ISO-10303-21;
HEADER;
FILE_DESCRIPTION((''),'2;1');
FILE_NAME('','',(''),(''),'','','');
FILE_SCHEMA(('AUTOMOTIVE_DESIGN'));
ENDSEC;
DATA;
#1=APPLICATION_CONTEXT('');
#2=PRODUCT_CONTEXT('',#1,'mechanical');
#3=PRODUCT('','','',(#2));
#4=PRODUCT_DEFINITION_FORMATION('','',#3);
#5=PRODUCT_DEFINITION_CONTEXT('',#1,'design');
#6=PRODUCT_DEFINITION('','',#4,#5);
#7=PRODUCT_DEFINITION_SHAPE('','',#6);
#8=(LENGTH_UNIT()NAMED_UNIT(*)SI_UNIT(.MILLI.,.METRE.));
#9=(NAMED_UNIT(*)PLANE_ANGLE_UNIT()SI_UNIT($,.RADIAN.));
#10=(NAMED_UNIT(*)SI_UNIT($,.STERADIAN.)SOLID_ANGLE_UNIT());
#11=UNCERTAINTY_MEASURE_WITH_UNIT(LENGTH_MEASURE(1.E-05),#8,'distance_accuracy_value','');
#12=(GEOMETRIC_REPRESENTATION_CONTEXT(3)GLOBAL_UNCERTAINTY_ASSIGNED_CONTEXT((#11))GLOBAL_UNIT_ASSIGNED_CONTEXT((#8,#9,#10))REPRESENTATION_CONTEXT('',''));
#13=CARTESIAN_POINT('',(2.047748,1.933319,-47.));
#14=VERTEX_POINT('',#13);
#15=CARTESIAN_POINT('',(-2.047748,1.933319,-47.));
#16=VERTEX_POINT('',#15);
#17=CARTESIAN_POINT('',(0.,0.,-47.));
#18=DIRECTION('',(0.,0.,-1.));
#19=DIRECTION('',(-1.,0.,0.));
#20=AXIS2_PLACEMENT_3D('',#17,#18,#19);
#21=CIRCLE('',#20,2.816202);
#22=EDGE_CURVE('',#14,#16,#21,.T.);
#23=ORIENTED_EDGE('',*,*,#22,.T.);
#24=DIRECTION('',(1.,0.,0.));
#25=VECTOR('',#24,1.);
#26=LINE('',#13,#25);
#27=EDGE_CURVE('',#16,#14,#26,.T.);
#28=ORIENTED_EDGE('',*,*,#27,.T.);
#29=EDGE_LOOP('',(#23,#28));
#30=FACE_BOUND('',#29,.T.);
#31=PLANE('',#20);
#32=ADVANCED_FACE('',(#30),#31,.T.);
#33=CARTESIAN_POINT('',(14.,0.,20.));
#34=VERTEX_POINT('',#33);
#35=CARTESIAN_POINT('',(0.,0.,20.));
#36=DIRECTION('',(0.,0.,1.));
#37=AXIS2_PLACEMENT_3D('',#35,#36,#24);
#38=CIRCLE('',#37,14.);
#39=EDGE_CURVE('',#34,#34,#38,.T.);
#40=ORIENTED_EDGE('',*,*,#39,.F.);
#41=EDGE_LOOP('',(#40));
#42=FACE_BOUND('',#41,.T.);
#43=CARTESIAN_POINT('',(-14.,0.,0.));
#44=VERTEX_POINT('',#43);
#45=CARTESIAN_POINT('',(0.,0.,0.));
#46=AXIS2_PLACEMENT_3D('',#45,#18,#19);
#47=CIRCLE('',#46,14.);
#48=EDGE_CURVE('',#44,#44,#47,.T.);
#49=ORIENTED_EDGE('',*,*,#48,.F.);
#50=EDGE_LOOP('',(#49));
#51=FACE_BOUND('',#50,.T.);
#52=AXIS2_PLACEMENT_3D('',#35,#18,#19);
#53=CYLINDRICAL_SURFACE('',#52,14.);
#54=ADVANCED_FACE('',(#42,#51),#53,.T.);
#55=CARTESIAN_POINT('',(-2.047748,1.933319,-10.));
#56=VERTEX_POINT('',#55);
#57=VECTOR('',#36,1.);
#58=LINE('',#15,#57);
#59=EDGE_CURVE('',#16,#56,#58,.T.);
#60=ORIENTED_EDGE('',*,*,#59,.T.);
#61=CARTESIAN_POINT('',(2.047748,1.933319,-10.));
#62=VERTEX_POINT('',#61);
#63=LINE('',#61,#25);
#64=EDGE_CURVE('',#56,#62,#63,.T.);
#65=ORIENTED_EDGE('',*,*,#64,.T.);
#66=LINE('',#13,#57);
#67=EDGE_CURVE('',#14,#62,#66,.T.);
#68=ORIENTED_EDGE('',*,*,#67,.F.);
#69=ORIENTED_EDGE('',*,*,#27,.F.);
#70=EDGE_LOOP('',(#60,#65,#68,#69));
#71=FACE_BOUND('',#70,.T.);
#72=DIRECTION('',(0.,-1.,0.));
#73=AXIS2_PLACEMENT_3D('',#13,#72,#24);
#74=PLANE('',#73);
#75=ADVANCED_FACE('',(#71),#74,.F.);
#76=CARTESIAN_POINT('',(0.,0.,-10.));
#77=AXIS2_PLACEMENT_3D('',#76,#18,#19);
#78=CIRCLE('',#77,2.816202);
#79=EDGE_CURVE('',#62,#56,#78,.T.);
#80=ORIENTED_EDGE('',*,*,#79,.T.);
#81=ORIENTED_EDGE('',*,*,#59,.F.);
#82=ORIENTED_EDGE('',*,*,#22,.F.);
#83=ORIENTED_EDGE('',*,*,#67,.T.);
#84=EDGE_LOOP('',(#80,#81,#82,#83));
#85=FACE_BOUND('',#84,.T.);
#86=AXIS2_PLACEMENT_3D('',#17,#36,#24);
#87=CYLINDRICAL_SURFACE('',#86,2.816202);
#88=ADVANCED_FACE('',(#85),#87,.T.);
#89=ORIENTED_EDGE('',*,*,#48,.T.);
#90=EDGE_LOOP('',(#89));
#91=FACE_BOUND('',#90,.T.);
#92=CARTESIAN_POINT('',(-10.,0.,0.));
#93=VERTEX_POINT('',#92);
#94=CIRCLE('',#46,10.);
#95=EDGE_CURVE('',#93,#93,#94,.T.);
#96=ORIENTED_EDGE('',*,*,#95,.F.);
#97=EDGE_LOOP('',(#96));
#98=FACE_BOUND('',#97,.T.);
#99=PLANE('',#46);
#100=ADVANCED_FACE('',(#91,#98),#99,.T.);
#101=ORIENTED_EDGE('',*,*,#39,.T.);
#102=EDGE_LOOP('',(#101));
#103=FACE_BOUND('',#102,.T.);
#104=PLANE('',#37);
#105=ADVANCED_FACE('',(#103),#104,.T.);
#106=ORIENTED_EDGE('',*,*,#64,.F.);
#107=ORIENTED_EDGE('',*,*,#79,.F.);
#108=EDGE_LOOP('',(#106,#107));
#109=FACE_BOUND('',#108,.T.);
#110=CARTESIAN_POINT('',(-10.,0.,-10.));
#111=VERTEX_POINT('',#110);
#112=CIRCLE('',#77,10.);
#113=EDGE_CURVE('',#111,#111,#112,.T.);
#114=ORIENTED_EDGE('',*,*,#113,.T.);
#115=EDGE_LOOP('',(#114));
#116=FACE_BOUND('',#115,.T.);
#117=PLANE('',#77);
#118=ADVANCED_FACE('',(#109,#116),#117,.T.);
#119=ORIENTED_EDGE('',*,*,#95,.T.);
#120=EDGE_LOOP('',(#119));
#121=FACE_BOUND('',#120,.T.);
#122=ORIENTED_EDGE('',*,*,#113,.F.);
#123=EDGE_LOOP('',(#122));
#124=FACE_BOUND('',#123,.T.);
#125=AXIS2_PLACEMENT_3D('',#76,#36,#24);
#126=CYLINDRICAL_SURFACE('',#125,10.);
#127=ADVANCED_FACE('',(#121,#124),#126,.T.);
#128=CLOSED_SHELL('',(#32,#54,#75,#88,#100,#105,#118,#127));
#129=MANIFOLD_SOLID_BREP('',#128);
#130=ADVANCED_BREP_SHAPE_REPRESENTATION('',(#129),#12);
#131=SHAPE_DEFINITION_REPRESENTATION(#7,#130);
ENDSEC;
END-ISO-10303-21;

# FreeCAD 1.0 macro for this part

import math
import FreeCAD as App
import Part
import Sketcher


def add_polygon(sketch, points):
    """Adds a closed chain of lines whose ends are joined by coincident constraints."""
    first, n = sketch.GeometryCount, len(points)
    for a, b in zip(points, points[1:] + points[:1]):
        sketch.addGeometry(Part.LineSegment(App.Vector(*a, 0), App.Vector(*b, 0)), False)
    for i in range(n):
        sketch.addConstraint(Sketcher.Constraint("Coincident", first + i, 2, first + (i + 1) % n, 1))

doc = App.newDocument("Part")
body = doc.addObject("PartDesign::Body", "Body")

# Sketch on XY plane
sketch1 = doc.addObject("Sketcher::SketchObject", "Sketch")
body.addObject(sketch1)
sketch1.AttachmentSupport = (doc.XY_Plane, [""])
sketch1.MapMode = "FlatFace"
sketch1.addGeometry(Part.Circle(App.Vector(0, 0, 0), App.Vector(0, 0, 1), 14), False)
sketch1.addConstraint([
    Sketcher.Constraint("Coincident", 0, 3, -1, 1),
    Sketcher.Constraint("Diameter", 0, 28.0),
])
pad1 = doc.addObject("PartDesign::Pad", "Pad")
body.addObject(pad1)
pad1.Profile = sketch1
pad1.Length = 20

# Sketch on XY plane
sketch2 = doc.addObject("Sketcher::SketchObject", "Sketch001")
body.addObject(sketch2)
sketch2.AttachmentSupport = (doc.XY_Plane, [""])
sketch2.MapMode = "FlatFace"
sketch2.addGeometry([
    Part.LineSegment(App.Vector(-2, 1.9, 0), App.Vector(2, 1.9, 0)),
    Part.ArcOfCircle(Part.Circle(App.Vector(0, 0, 0), App.Vector(0, 0, 1), 2.8), math.radians(137), math.radians(403)),
], False)
sketch2.addConstraint([
    Sketcher.Constraint("Coincident", 0, 1, 1, 1),
    Sketcher.Constraint("Coincident", 1, 2, 0, 2),
    Sketcher.Constraint("Horizontal", 0),
    Sketcher.Constraint("Coincident", 1, 3, -1, 1),
    Sketcher.Constraint("Radius", 1, 2.816202),
    Sketcher.Constraint("DistanceX", 0, 1, 0, 2, 4.095495),
])
pad2 = doc.addObject("PartDesign::Pad", "Pad001")
body.addObject(pad2)
pad2.Profile = sketch2
pad2.Length = 47
pad2.Reversed = True

# Sketch on XY plane
sketch3 = doc.addObject("Sketcher::SketchObject", "Sketch002")
body.addObject(sketch3)
sketch3.AttachmentSupport = (doc.XY_Plane, [""])
sketch3.MapMode = "FlatFace"
sketch3.addGeometry(Part.Circle(App.Vector(0, 0, 0), App.Vector(0, 0, 1), 18), False)
sketch3.addConstraint([
    Sketcher.Constraint("Coincident", 0, 3, -1, 1),
    Sketcher.Constraint("Diameter", 0, 36.0),
])
pad3 = doc.addObject("PartDesign::Pad", "Pad002")
body.addObject(pad3)
pad3.Profile = sketch3
pad3.Length = 2
pad3.Reversed = True

# Sketch on XY plane
sketch4 = doc.addObject("Sketcher::SketchObject", "Sketch003")
body.addObject(sketch4)
sketch4.AttachmentSupport = (doc.XY_Plane, [""])
sketch4.MapMode = "FlatFace"
sketch4.AttachmentOffset = App.Placement(App.Vector(0, 0, -2), App.Rotation())
sketch4.addGeometry(Part.Circle(App.Vector(0, 0, 0), App.Vector(0, 0, 1), 10), False)
sketch4.addConstraint([
    Sketcher.Constraint("Coincident", 0, 3, -1, 1),
    Sketcher.Constraint("Diameter", 0, 20.0),
])
pad4 = doc.addObject("PartDesign::Pad", "Pad003")
body.addObject(pad4)
pad4.Profile = sketch4
pad4.Length = 8
pad4.Reversed = True

# Sketch on XY plane
sketch5 = doc.addObject("Sketcher::SketchObject", "Sketch004")
body.addObject(sketch5)
sketch5.AttachmentSupport = (doc.XY_Plane, [""])
sketch5.MapMode = "FlatFace"
sketch5.addGeometry([
    Part.LineSegment(App.Vector(-50, 18, 0), App.Vector(0, 18, 0)),  # 0
    Part.ArcOfCircle(Part.Circle(App.Vector(0, 0, 0), App.Vector(0, 0, 1), 18), math.radians(90), math.radians(180)),  # 1
    Part.ArcOfCircle(Part.Circle(App.Vector(0, 0, 0), App.Vector(0, 0, 1), 18), math.radians(-180), math.radians(-90)),  # 2
    Part.LineSegment(App.Vector(0, -18, 0), App.Vector(-50, -18, 0)),  # 3
    Part.ArcOfCircle(Part.Circle(App.Vector(-50, -8, 0), App.Vector(0, 0, 1), 10), math.radians(180), math.radians(270)),  # 4
    Part.LineSegment(App.Vector(-60, -8, 0), App.Vector(-60, 8, 0)),  # 5
    Part.ArcOfCircle(Part.Circle(App.Vector(-50, 8, 0), App.Vector(0, 0, 1), 10), math.radians(90), math.radians(180)),  # 6
], False)
sketch5.addConstraint([
    Sketcher.Constraint("Tangent", 0, 2, 1, 1),
    Sketcher.Constraint("Tangent", 1, 2, 2, 1),
    Sketcher.Constraint("Tangent", 2, 2, 3, 1),
    Sketcher.Constraint("Tangent", 3, 2, 4, 2),
    Sketcher.Constraint("Tangent", 4, 1, 5, 1),
    Sketcher.Constraint("Tangent", 5, 2, 6, 2),
    Sketcher.Constraint("Tangent", 6, 1, 0, 1),
    Sketcher.Constraint("Horizontal", 0),
    Sketcher.Constraint("Horizontal", 3),
    Sketcher.Constraint("Vertical", 5),
    Sketcher.Constraint("Coincident", 1, 3, -1, 1),
    Sketcher.Constraint("Equal", 1, 2),
    Sketcher.Constraint("Equal", 4, 6),
    Sketcher.Constraint("PointOnObject", 1, 2, -1),
    Sketcher.Constraint("Radius", 1, 18.0),
    Sketcher.Constraint("Radius", 4, 10.0),
    Sketcher.Constraint("DistanceX", 0, 1, 0, 2, 50.0),
])
pad5 = doc.addObject("PartDesign::Pad", "Pad004")
body.addObject(pad5)
pad5.Profile = sketch5
pad5.Length = 2
pad5.Reversed = True

# Sketch on XY plane
sketch6 = doc.addObject("Sketcher::SketchObject", "Sketch005")
body.addObject(sketch6)
sketch6.AttachmentSupport = (doc.XY_Plane, [""])
sketch6.MapMode = "FlatFace"
add_polygon(sketch6, [(23, 18), (23, -18), (-62, -18), (-62, 18)])  # lines 0-3
sketch6.addGeometry(Part.Circle(App.Vector(0, 0, 0), App.Vector(0, 0, 1), 10), False)  # 4
sketch6.addConstraint([
    Sketcher.Constraint("Vertical", 0),
    Sketcher.Constraint("Horizontal", 1),
    Sketcher.Constraint("Vertical", 2),
    Sketcher.Constraint("Horizontal", 3),
    Sketcher.Constraint("Coincident", 4, 3, -1, 1),
    Sketcher.Constraint("Diameter", 4, 20.0),
    Sketcher.Constraint("DistanceY", 0, 2, 0, 1, 36.0),
    Sketcher.Constraint("DistanceY", 0, 2, -1, 1, 18.0),
    Sketcher.Constraint("DistanceX", 1, 2, 1, 1, 84.606568),
    Sketcher.Constraint("DistanceX", -1, 1, 0, 2, 22.504594),
])
pocket1 = doc.addObject("PartDesign::Pocket", "Pocket")
body.addObject(pocket1)
pocket1.Profile = sketch6
pocket1.Length = 2

doc.recompute()
